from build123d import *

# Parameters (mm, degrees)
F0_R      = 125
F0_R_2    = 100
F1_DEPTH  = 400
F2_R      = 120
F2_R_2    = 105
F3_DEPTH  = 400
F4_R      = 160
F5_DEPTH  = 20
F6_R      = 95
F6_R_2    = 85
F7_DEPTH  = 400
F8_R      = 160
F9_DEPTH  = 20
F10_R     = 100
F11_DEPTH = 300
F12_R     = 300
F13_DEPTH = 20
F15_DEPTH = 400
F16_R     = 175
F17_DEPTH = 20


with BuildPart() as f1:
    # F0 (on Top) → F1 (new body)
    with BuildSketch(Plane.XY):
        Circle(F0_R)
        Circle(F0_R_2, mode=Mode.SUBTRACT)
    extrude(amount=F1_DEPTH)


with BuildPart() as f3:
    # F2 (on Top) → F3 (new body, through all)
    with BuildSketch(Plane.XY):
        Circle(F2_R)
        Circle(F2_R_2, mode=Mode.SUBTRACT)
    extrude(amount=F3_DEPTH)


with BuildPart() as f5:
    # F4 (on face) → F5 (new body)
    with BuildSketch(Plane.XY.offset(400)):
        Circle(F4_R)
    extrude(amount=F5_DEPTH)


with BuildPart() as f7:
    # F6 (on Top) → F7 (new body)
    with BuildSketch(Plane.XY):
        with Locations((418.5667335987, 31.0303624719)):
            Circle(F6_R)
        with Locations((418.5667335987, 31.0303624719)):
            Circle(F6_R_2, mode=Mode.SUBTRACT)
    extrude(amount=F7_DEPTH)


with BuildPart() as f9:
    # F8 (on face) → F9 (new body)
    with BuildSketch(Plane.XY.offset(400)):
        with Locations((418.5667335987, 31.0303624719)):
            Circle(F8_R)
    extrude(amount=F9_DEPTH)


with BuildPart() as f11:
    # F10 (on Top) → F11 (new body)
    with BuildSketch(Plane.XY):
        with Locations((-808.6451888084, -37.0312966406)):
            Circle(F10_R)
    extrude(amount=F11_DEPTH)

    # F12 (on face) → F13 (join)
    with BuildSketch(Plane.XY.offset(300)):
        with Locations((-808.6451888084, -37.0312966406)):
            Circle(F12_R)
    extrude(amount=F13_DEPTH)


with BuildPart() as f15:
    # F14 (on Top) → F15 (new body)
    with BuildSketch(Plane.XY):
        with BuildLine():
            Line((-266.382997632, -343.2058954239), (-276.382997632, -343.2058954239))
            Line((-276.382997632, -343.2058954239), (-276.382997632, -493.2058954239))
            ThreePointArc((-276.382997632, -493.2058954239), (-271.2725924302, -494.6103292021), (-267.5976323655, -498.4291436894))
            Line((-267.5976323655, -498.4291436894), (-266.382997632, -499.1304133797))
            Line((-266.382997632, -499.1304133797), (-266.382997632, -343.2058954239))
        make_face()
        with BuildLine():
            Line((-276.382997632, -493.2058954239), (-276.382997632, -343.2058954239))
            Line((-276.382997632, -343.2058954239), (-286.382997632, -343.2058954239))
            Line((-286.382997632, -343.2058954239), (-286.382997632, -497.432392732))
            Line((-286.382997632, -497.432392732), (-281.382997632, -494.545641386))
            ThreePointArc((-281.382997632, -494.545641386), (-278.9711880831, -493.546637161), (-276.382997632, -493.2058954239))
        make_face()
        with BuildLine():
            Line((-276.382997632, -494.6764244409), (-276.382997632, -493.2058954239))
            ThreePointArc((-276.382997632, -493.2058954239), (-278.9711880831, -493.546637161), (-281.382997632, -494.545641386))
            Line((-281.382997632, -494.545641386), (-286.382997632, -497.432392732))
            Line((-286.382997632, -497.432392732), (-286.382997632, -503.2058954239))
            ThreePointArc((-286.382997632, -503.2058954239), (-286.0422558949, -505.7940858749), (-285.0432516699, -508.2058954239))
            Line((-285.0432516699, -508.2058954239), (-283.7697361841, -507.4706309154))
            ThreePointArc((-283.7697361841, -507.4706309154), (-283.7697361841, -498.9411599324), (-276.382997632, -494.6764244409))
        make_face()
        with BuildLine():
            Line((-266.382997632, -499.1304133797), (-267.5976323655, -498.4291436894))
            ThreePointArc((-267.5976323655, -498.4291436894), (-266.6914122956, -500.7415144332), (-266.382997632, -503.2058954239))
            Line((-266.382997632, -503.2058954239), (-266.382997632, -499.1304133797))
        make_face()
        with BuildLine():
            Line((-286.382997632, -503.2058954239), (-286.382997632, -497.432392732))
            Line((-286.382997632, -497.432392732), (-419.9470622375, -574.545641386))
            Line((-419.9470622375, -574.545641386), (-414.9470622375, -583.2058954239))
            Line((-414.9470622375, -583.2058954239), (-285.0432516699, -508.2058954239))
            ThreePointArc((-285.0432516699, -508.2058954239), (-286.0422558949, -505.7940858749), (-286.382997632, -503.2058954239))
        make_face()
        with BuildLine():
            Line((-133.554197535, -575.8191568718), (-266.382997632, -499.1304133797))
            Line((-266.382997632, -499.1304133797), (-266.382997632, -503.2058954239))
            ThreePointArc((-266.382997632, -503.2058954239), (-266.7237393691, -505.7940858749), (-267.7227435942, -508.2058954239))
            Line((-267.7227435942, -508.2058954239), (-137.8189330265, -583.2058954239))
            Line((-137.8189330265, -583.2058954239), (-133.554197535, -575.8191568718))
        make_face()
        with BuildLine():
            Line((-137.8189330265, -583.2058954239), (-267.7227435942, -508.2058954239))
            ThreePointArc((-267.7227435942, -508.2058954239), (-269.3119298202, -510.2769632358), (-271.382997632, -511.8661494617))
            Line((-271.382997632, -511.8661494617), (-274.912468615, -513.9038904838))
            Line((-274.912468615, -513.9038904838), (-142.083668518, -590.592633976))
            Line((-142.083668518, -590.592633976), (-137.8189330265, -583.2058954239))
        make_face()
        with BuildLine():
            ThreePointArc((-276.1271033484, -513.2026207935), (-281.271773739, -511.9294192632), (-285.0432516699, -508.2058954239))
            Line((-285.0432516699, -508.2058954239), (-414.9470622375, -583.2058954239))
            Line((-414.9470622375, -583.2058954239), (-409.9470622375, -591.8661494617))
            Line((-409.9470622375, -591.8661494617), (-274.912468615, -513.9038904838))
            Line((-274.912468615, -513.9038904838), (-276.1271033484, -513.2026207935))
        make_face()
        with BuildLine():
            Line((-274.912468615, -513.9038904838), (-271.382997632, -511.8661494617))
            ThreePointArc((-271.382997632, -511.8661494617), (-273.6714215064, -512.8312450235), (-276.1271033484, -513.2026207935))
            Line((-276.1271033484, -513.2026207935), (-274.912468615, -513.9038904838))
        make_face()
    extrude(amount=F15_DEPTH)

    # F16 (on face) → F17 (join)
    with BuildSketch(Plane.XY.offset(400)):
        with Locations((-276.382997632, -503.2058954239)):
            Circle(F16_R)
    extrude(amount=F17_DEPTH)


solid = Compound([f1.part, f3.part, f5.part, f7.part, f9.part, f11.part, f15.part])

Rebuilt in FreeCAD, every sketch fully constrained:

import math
import FreeCAD as App
import Part
import Sketcher
Q = App.Units.Quantity


def add_polygon(sketch, points):
    """Adds a closed chain of lines whose ends are joined by coincident constraints."""
    first, n = sketch.GeometryCount, len(points)
    for a, b in zip(points, points[1:] + points[:1]):
        sketch.addGeometry(Part.LineSegment(App.Vector(*a, 0), App.Vector(*b, 0)), False)
    for i in range(n):
        sketch.addConstraint(Sketcher.Constraint("Coincident", first + i, 2, first + (i + 1) % n, 1))

doc = App.newDocument("Part")
body = doc.addObject("PartDesign::Body", "Body")

sketch1 = body.newObject("Sketcher::SketchObject", "Sketch")
sketch1.AttachmentSupport = (doc.getObject("XY_Plane"), [""])
sketch1.MapMode = "FlatFace"
sketch1.addGeometry([
    Part.Circle(App.Vector(0, 0, 0), App.Vector(0, 0, 1), 125),
    Part.Circle(App.Vector(0, 0, 0), App.Vector(0, 0, 1), 100),
], False)
sketch1.addConstraint([
    Sketcher.Constraint("Coincident", 0, 3, -1, 1),
    Sketcher.Constraint("Coincident", 1, 3, -1, 1),
    Sketcher.Constraint("Diameter", 0, Q("250 mm")),
    Sketcher.Constraint("Diameter", 1, Q("200 mm")),
])
pad1 = body.newObject("PartDesign::Pad", "Pad")
pad1.Profile = sketch1
pad1.Length = 400
body2 = doc.addObject("PartDesign::Body", "Body001")

sketch2 = body2.newObject("Sketcher::SketchObject", "Sketch001")
sketch2.AttachmentSupport = (doc.getObject("XY_Plane001"), [""])
sketch2.MapMode = "FlatFace"
sketch2.addGeometry([
    Part.Circle(App.Vector(0, 0, 0), App.Vector(0, 0, 1), 120),
    Part.Circle(App.Vector(0, 0, 0), App.Vector(0, 0, 1), 105),
], False)
sketch2.addConstraint([
    Sketcher.Constraint("Coincident", 0, 3, -1, 1),
    Sketcher.Constraint("Coincident", 1, 3, -1, 1),
    Sketcher.Constraint("Diameter", 0, Q("240 mm")),
    Sketcher.Constraint("Diameter", 1, Q("210 mm")),
])
pad2 = body2.newObject("PartDesign::Pad", "Pad001")
pad2.Profile = sketch2
pad2.Length = 400
body3 = doc.addObject("PartDesign::Body", "Body002")

sketch3 = body3.newObject("Sketcher::SketchObject", "Sketch002")
sketch3.AttachmentSupport = (doc.getObject("XY_Plane002"), [""])
sketch3.MapMode = "FlatFace"
sketch3.AttachmentOffset = App.Placement(App.Vector(0, 0, 400), App.Rotation())
sketch3.addGeometry(Part.Circle(App.Vector(0, 0, 0), App.Vector(0, 0, 1), 160), False)
sketch3.addConstraint([
    Sketcher.Constraint("Coincident", 0, 3, -1, 1),
    Sketcher.Constraint("Diameter", 0, Q("320 mm")),
])
pad3 = body3.newObject("PartDesign::Pad", "Pad002")
pad3.Profile = sketch3
pad3.Length = 20
body4 = doc.addObject("PartDesign::Body", "Body003")

sketch4 = body4.newObject("Sketcher::SketchObject", "Sketch003")
sketch4.AttachmentSupport = (doc.getObject("XY_Plane003"), [""])
sketch4.MapMode = "FlatFace"
sketch4.addGeometry([
    Part.Circle(App.Vector(419, 31, 0), App.Vector(0, 0, 1), 95),
    Part.Circle(App.Vector(419, 31, 0), App.Vector(0, 0, 1), 85),
], False)
sketch4.addConstraint([
    Sketcher.Constraint("Coincident", 1, 3, 0, 3),
    Sketcher.Constraint("Diameter", 0, Q("190 mm")),
    Sketcher.Constraint("Diameter", 1, Q("170 mm")),
    Sketcher.Constraint("DistanceX", -1, 1, 0, 3, Q("418.566734 mm")),
    Sketcher.Constraint("DistanceY", -1, 1, 0, 3, Q("31.030362 mm")),
])
pad4 = body4.newObject("PartDesign::Pad", "Pad003")
pad4.Profile = sketch4
pad4.Length = 400
body5 = doc.addObject("PartDesign::Body", "Body004")

sketch5 = body5.newObject("Sketcher::SketchObject", "Sketch004")
sketch5.AttachmentSupport = (doc.getObject("XY_Plane004"), [""])
sketch5.MapMode = "FlatFace"
sketch5.AttachmentOffset = App.Placement(App.Vector(0, 0, 400), App.Rotation())
sketch5.addGeometry(Part.Circle(App.Vector(419, 31, 0), App.Vector(0, 0, 1), 160), False)
sketch5.addConstraint([
    Sketcher.Constraint("Diameter", 0, Q("320 mm")),
    Sketcher.Constraint("DistanceX", -1, 1, 0, 3, Q("418.566734 mm")),
    Sketcher.Constraint("DistanceY", -1, 1, 0, 3, Q("31.030362 mm")),
])
pad5 = body5.newObject("PartDesign::Pad", "Pad004")
pad5.Profile = sketch5
pad5.Length = 20
body6 = doc.addObject("PartDesign::Body", "Body005")

sketch6 = body6.newObject("Sketcher::SketchObject", "Sketch005")
sketch6.AttachmentSupport = (doc.getObject("XY_Plane005"), [""])
sketch6.MapMode = "FlatFace"
sketch6.addGeometry(Part.Circle(App.Vector(-809, -37, 0), App.Vector(0, 0, 1), 100), False)
sketch6.addConstraint([
    Sketcher.Constraint("Diameter", 0, Q("200 mm")),
    Sketcher.Constraint("DistanceX", 0, 3, -1, 1, Q("808.645189 mm")),
    Sketcher.Constraint("DistanceY", 0, 3, -1, 1, Q("37.031297 mm")),
])
pad6 = body6.newObject("PartDesign::Pad", "Pad005")
pad6.Profile = sketch6
pad6.Length = 300

sketch7 = body6.newObject("Sketcher::SketchObject", "Sketch006")
sketch7.AttachmentSupport = (doc.getObject("XY_Plane005"), [""])
sketch7.MapMode = "FlatFace"
sketch7.AttachmentOffset = App.Placement(App.Vector(0, 0, 300), App.Rotation())
sketch7.addGeometry(Part.Circle(App.Vector(-809, -37, 0), App.Vector(0, 0, 1), 300), False)
sketch7.addConstraint([
    Sketcher.Constraint("Diameter", 0, Q("600 mm")),
    Sketcher.Constraint("DistanceX", 0, 3, -1, 1, Q("808.645189 mm")),
    Sketcher.Constraint("DistanceY", 0, 3, -1, 1, Q("37.031297 mm")),
])
pad7 = body6.newObject("PartDesign::Pad", "Pad006")
pad7.Profile = sketch7
pad7.Length = 20
body7 = doc.addObject("PartDesign::Body", "Body006")

sketch8 = body7.newObject("Sketcher::SketchObject", "Sketch007")
sketch8.AttachmentSupport = (doc.getObject("XY_Plane006"), [""])
sketch8.MapMode = "FlatFace"
add_polygon(sketch8, [(-409.947062, -591.866149), (-274.912469, -513.90389), (-142.083669, -590.592634), (-133.554198, -575.819157), (-266.382998, -499.130413), (-266.382998, -343.205895), (-286.382998, -343.205895), (-286.382998, -497.432393), (-419.947062, -574.545641), (-414.947062, -583.205895)])
sketch8.addGeometry(Part.ArcOfCircle(Part.Circle(App.Vector(-276.382998, -503.205895, 0), App.Vector(0, 0, 1), 10), math.radians(-60), math.radians(-30)), False)
sketch8.addGeometry(Part.ArcOfCircle(Part.Circle(App.Vector(-276.382998, -503.205895, 0), App.Vector(0, 0, 1), 10), math.radians(-88.533674), math.radians(-60)), False)
sketch8.addGeometry(Part.ArcOfCircle(Part.Circle(App.Vector(-276.382998, -503.205895, 0), App.Vector(0, 0, 1), 10), math.radians(-150), math.radians(-88.533674)), False)
sketch8.addGeometry(Part.LineSegment(App.Vector(-285.043252, -508.205895, 0), App.Vector(-283.769736, -507.470631, 0)), False)
sketch8.addGeometry(Part.ArcOfCircle(Part.Circle(App.Vector(-276.382998, -503.205895, 0), App.Vector(0, 0, 1), 8.529471), math.radians(90), math.radians(210)), False)
sketch8.addGeometry(Part.LineSegment(App.Vector(-276.382998, -494.676424, 0), App.Vector(-276.382998, -493.205895, 0)), False)
sketch8.addGeometry(Part.ArcOfCircle(Part.Circle(App.Vector(-276.382998, -503.205895, 0), App.Vector(0, 0, 1), 10), math.radians(28.533674), math.radians(90)), False)
sketch8.addGeometry(Part.ArcOfCircle(Part.Circle(App.Vector(-276.382998, -503.205895, 0), App.Vector(0, 0, 1), 10), math.radians(0), math.radians(28.533674)), False)
sketch8.addGeometry(Part.ArcOfCircle(Part.Circle(App.Vector(-276.382998, -503.205895, 0), App.Vector(0, 0, 1), 10), math.radians(-30), math.radians(0)), False)
sketch8.addConstraint([
    Sketcher.Constraint("Tangent", 10, 1, 11, 2),
    Sketcher.Constraint("Tangent", 11, 1, 12, 2),
    Sketcher.Constraint("Coincident", 12, 1, 13, 1),
    Sketcher.Constraint("Coincident", 13, 2, 14, 2),
    Sketcher.Constraint("Coincident", 14, 1, 15, 1),
    Sketcher.Constraint("Coincident", 15, 2, 16, 2),
    Sketcher.Constraint("Tangent", 16, 1, 17, 2),
    Sketcher.Constraint("Tangent", 17, 1, 18, 2),
    Sketcher.Constraint("Tangent", 18, 1, 10, 2),
    Sketcher.Constraint("Vertical", 4),
    Sketcher.Constraint("Horizontal", 5),
    Sketcher.Constraint("Vertical", 6),
    Sketcher.Constraint("Vertical", 15),
    Sketcher.Constraint("Coincident", 12, 3, 10, 3),
    Sketcher.Constraint("Coincident", 14, 3, 10, 3),
    Sketcher.Constraint("Coincident", 16, 3, 10, 3),
    Sketcher.Constraint("Equal", 12, 16),
    Sketcher.Constraint("Perpendicular", 1, 2),
    Sketcher.Constraint("Perpendicular", 2, 3),
    Sketcher.Constraint("Parallel", 0, 7),
    Sketcher.Constraint("Perpendicular", 7, 8),
    Sketcher.Constraint("Parallel", 8, 9),
    Sketcher.Constraint("Perpendicular", 9, 13),
    Sketcher.Constraint("Horizontal", 18, 3, 17, 1),
    Sketcher.Constraint("Horizontal", 12, 1, 18, 1),
    Sketcher.Constraint("Vertical", 18, 3, 14, 1),
    Sketcher.Constraint("Vertical", 4, 2, 17, 1),
    Sketcher.Constraint("Equal", 1, 3),
    Sketcher.Constraint("Equal", 8, 9),
    Sketcher.Constraint("Radius", 10, Q("10 mm")),
    Sketcher.Constraint("DistanceX", 5, 2, 5, 1, Q("20 mm")),
    Sketcher.Constraint("Angle", 0, Q("30 deg")),
    Sketcher.Constraint("Angle", 1, Q("-30 deg")),
    Sketcher.Constraint("Distance", 8, Q("10 mm")),
    Sketcher.Constraint("DistanceY", 17, 3, 4, 2, Q("160 mm")),
    Sketcher.Constraint("DistanceY", 8, 2, 10, 3, Q("80 mm")),
    Sketcher.Constraint("DistanceX", 17, 3, 10, 1, Q("5 mm")),
    Sketcher.Constraint("DistanceY", 12, 1, 10, 3, Q("5 mm")),
    Sketcher.Constraint("Radius", 14, Q("8.529471 mm")),
    Sketcher.Constraint("DistanceX", 0, 2, 1, 2, Q("132.8288 mm")),
    Sketcher.Constraint("Distance", 2, Q("17.058942 mm")),
    Sketcher.Constraint("DistanceY", 4, 1, 4, 2, Q("155.924518 mm")),
    Sketcher.Constraint("DistanceX", 0, 2, -1, 1, Q("274.912469 mm")),
    Sketcher.Constraint("DistanceY", 0, 2, -1, 1, Q("513.90389 mm")),
    Sketcher.Constraint("DistanceY", 11, 1, -1, 1, Q("513.202621 mm")),
    Sketcher.Constraint("DistanceY", 3, 2, 16, 1, Q("0.70127 mm")),
])
pad8 = body7.newObject("PartDesign::Pad", "Pad007")
pad8.Profile = sketch8
pad8.Length = 400

sketch9 = body7.newObject("Sketcher::SketchObject", "Sketch008")
sketch9.AttachmentSupport = (doc.getObject("XY_Plane006"), [""])
sketch9.MapMode = "FlatFace"
sketch9.AttachmentOffset = App.Placement(App.Vector(0, 0, 400), App.Rotation())
sketch9.addGeometry(Part.Circle(App.Vector(-276, -503, 0), App.Vector(0, 0, 1), 175), False)
sketch9.addConstraint([
    Sketcher.Constraint("Diameter", 0, Q("350 mm")),
    Sketcher.Constraint("DistanceX", 0, 3, -1, 1, Q("276.382998 mm")),
    Sketcher.Constraint("DistanceY", 0, 3, -1, 1, Q("503.205895 mm")),
])
pad9 = body7.newObject("PartDesign::Pad", "Pad008")
pad9.Profile = sketch9
pad9.Length = 20

doc.recompute()
